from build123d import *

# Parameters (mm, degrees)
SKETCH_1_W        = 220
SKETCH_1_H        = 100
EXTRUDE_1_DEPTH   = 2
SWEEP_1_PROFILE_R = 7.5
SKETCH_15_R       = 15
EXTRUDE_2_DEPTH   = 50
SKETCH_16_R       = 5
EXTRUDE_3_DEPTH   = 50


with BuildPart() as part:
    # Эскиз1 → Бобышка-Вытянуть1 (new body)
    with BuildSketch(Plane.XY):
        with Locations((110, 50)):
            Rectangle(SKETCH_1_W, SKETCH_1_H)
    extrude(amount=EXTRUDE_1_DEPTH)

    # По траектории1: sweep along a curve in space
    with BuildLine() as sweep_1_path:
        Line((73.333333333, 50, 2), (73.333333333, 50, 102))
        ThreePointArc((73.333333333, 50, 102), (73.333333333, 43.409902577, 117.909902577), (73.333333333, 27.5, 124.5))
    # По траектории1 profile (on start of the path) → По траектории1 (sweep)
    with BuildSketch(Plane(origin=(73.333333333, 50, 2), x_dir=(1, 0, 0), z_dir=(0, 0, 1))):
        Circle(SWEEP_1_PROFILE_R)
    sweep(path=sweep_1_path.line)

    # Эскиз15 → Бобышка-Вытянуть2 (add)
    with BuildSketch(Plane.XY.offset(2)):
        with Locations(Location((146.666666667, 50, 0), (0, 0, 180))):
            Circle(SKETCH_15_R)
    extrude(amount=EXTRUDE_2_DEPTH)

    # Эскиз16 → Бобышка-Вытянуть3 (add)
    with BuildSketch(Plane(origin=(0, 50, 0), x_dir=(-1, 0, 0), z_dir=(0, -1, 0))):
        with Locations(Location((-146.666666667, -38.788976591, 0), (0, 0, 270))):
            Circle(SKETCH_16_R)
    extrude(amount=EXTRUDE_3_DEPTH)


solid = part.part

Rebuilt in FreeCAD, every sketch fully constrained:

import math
import FreeCAD as App
import Part
import Sketcher
from FreeCAD import Vector
Q = App.Units.Quantity


def add_polygon(sketch, points):
    """Adds a closed chain of lines whose ends are joined by coincident constraints."""
    first, n = sketch.GeometryCount, len(points)
    for a, b in zip(points, points[1:] + points[:1]):
        sketch.addGeometry(Part.LineSegment(App.Vector(*a, 0), App.Vector(*b, 0)), False)
    for i in range(n):
        sketch.addConstraint(Sketcher.Constraint("Coincident", first + i, 2, first + (i + 1) % n, 1))

doc = App.newDocument("Part")
body = doc.addObject("PartDesign::Body", "Body")

# Sketch on XY plane
sketch1 = body.newObject("Sketcher::SketchObject", "Sketch")
sketch1.AttachmentSupport = (doc.getObject("XY_Plane"), [""])
sketch1.MapMode = "FlatFace"
add_polygon(sketch1, [(0, 100), (0, 0), (220, 0), (220, 100)])  # lines 0-3
sketch1.addConstraint(Sketcher.Constraint("Vertical", 0))
sketch1.addConstraint(Sketcher.Constraint("Horizontal", 1))
sketch1.addConstraint(Sketcher.Constraint("Vertical", 2))
sketch1.addConstraint(Sketcher.Constraint("Horizontal", 3))
sketch1.addConstraint(Sketcher.Constraint("Coincident", 0, 2, -1, 1))
sketch1.addConstraint(Sketcher.Constraint("DistanceX", 1, 1, 1, 2, Q("220 mm")))
sketch1.addConstraint(Sketcher.Constraint("DistanceY", 0, 2, 0, 1, Q("100 mm")))
pad1 = body.newObject("PartDesign::Pad", "Pad")
pad1.Profile = sketch1
pad1.Length = 2

# Sketch on XY plane
sketch2 = body.newObject("Sketcher::SketchObject", "Sketch001")
sketch2.AttachmentSupport = (doc.getObject("XY_Plane"), [""])
sketch2.MapMode = "FlatFace"
sketch2.AttachmentOffset = App.Placement(Vector(0, 0, 2), App.Rotation())
sketch2.addGeometry(Part.Circle(Vector(73, 50, 0), Vector(0, 0, 1), 8), False)
sketch2.addConstraint(Sketcher.Constraint("Diameter", 0, Q("15 mm")))
sketch2.addConstraint(Sketcher.Constraint("DistanceY", -1, 1, 0, 3, Q("50 mm")))
sketch2.addConstraint(Sketcher.Constraint("DistanceX", -1, 1, 0, 3, Q("73.333333 mm")))

# Sketch on YZ plane
sketch3 = body.newObject("Sketcher::SketchObject", "Sketch002")
sketch3.AttachmentSupport = (doc.getObject("YZ_Plane"), [""])
sketch3.MapMode = "FlatFace"
sketch3.AttachmentOffset = App.Placement(Vector(0, 0, 73.333333), App.Rotation())
sketch3.addGeometry(Part.LineSegment(Vector(50, 2, 0), Vector(50, 102, 0)), False)
sketch3.addGeometry(Part.ArcOfCircle(Part.Circle(Vector(28, 102, 0), Vector(0, 0, 1), 22), math.radians(0), math.radians(90)), False)
sketch3.addConstraint(Sketcher.Constraint("Tangent", 0, 2, 1, 1))
sketch3.addConstraint(Sketcher.Constraint("Vertical", 0))
sketch3.addConstraint(Sketcher.Constraint("Radius", 1, Q("22.5 mm")))
sketch3.addConstraint(Sketcher.Constraint("DistanceY", 0, 1, 0, 2, Q("100 mm")))
sketch3.addConstraint(Sketcher.Constraint("DistanceY", -1, 1, 1, 3, Q("102 mm")))
sketch3.addConstraint(Sketcher.Constraint("DistanceX", -1, 1, 0, 1, Q("50 mm")))
sketch3.addConstraint(Sketcher.Constraint("DistanceX", -1, 1, 1, 2, Q("27.5 mm")))
doc.recompute()

additivepipe = body.newObject("PartDesign::AdditivePipe", "AdditivePipe")
additivepipe.Profile = sketch2
additivepipe.Spine = (sketch3, ["Edge1", "Edge2"])

# Sketch on XY plane
sketch4 = body.newObject("Sketcher::SketchObject", "Sketch003")
sketch4.AttachmentSupport = (doc.getObject("XY_Plane"), [""])
sketch4.MapMode = "FlatFace"
sketch4.AttachmentOffset = App.Placement(Vector(0, 0, 2), App.Rotation())
sketch4.addGeometry(Part.Circle(Vector(147, 50, 0), Vector(0, 0, 1), 15), False)
sketch4.addConstraint(Sketcher.Constraint("Diameter", 0, Q("30 mm")))
sketch4.addConstraint(Sketcher.Constraint("DistanceY", -1, 1, 0, 3, Q("50 mm")))
sketch4.addConstraint(Sketcher.Constraint("DistanceX", -1, 1, 0, 3, Q("146.666667 mm")))
pad2 = body.newObject("PartDesign::Pad", "Pad001")
pad2.Profile = sketch4
pad2.Length = 50

# Sketch on XZ plane
sketch5 = body.newObject("Sketcher::SketchObject", "Sketch004")
sketch5.AttachmentSupport = (doc.getObject("XZ_Plane"), [""])
sketch5.MapMode = "FlatFace"
sketch5.AttachmentOffset = App.Placement(Vector(0, 0, -50), App.Rotation())
sketch5.addGeometry(Part.Circle(Vector(147, 39, 0), Vector(0, 0, 1), 5), False)
sketch5.addConstraint(Sketcher.Constraint("Diameter", 0, Q("10 mm")))
sketch5.addConstraint(Sketcher.Constraint("DistanceX", -1, 1, 0, 3, Q("146.666667 mm")))
sketch5.addConstraint(Sketcher.Constraint("DistanceY", -1, 1, 0, 3, Q("38.788977 mm")))
pad3 = body.newObject("PartDesign::Pad", "Pad002")
pad3.Profile = sketch5
pad3.Length = 50

doc.recompute()
